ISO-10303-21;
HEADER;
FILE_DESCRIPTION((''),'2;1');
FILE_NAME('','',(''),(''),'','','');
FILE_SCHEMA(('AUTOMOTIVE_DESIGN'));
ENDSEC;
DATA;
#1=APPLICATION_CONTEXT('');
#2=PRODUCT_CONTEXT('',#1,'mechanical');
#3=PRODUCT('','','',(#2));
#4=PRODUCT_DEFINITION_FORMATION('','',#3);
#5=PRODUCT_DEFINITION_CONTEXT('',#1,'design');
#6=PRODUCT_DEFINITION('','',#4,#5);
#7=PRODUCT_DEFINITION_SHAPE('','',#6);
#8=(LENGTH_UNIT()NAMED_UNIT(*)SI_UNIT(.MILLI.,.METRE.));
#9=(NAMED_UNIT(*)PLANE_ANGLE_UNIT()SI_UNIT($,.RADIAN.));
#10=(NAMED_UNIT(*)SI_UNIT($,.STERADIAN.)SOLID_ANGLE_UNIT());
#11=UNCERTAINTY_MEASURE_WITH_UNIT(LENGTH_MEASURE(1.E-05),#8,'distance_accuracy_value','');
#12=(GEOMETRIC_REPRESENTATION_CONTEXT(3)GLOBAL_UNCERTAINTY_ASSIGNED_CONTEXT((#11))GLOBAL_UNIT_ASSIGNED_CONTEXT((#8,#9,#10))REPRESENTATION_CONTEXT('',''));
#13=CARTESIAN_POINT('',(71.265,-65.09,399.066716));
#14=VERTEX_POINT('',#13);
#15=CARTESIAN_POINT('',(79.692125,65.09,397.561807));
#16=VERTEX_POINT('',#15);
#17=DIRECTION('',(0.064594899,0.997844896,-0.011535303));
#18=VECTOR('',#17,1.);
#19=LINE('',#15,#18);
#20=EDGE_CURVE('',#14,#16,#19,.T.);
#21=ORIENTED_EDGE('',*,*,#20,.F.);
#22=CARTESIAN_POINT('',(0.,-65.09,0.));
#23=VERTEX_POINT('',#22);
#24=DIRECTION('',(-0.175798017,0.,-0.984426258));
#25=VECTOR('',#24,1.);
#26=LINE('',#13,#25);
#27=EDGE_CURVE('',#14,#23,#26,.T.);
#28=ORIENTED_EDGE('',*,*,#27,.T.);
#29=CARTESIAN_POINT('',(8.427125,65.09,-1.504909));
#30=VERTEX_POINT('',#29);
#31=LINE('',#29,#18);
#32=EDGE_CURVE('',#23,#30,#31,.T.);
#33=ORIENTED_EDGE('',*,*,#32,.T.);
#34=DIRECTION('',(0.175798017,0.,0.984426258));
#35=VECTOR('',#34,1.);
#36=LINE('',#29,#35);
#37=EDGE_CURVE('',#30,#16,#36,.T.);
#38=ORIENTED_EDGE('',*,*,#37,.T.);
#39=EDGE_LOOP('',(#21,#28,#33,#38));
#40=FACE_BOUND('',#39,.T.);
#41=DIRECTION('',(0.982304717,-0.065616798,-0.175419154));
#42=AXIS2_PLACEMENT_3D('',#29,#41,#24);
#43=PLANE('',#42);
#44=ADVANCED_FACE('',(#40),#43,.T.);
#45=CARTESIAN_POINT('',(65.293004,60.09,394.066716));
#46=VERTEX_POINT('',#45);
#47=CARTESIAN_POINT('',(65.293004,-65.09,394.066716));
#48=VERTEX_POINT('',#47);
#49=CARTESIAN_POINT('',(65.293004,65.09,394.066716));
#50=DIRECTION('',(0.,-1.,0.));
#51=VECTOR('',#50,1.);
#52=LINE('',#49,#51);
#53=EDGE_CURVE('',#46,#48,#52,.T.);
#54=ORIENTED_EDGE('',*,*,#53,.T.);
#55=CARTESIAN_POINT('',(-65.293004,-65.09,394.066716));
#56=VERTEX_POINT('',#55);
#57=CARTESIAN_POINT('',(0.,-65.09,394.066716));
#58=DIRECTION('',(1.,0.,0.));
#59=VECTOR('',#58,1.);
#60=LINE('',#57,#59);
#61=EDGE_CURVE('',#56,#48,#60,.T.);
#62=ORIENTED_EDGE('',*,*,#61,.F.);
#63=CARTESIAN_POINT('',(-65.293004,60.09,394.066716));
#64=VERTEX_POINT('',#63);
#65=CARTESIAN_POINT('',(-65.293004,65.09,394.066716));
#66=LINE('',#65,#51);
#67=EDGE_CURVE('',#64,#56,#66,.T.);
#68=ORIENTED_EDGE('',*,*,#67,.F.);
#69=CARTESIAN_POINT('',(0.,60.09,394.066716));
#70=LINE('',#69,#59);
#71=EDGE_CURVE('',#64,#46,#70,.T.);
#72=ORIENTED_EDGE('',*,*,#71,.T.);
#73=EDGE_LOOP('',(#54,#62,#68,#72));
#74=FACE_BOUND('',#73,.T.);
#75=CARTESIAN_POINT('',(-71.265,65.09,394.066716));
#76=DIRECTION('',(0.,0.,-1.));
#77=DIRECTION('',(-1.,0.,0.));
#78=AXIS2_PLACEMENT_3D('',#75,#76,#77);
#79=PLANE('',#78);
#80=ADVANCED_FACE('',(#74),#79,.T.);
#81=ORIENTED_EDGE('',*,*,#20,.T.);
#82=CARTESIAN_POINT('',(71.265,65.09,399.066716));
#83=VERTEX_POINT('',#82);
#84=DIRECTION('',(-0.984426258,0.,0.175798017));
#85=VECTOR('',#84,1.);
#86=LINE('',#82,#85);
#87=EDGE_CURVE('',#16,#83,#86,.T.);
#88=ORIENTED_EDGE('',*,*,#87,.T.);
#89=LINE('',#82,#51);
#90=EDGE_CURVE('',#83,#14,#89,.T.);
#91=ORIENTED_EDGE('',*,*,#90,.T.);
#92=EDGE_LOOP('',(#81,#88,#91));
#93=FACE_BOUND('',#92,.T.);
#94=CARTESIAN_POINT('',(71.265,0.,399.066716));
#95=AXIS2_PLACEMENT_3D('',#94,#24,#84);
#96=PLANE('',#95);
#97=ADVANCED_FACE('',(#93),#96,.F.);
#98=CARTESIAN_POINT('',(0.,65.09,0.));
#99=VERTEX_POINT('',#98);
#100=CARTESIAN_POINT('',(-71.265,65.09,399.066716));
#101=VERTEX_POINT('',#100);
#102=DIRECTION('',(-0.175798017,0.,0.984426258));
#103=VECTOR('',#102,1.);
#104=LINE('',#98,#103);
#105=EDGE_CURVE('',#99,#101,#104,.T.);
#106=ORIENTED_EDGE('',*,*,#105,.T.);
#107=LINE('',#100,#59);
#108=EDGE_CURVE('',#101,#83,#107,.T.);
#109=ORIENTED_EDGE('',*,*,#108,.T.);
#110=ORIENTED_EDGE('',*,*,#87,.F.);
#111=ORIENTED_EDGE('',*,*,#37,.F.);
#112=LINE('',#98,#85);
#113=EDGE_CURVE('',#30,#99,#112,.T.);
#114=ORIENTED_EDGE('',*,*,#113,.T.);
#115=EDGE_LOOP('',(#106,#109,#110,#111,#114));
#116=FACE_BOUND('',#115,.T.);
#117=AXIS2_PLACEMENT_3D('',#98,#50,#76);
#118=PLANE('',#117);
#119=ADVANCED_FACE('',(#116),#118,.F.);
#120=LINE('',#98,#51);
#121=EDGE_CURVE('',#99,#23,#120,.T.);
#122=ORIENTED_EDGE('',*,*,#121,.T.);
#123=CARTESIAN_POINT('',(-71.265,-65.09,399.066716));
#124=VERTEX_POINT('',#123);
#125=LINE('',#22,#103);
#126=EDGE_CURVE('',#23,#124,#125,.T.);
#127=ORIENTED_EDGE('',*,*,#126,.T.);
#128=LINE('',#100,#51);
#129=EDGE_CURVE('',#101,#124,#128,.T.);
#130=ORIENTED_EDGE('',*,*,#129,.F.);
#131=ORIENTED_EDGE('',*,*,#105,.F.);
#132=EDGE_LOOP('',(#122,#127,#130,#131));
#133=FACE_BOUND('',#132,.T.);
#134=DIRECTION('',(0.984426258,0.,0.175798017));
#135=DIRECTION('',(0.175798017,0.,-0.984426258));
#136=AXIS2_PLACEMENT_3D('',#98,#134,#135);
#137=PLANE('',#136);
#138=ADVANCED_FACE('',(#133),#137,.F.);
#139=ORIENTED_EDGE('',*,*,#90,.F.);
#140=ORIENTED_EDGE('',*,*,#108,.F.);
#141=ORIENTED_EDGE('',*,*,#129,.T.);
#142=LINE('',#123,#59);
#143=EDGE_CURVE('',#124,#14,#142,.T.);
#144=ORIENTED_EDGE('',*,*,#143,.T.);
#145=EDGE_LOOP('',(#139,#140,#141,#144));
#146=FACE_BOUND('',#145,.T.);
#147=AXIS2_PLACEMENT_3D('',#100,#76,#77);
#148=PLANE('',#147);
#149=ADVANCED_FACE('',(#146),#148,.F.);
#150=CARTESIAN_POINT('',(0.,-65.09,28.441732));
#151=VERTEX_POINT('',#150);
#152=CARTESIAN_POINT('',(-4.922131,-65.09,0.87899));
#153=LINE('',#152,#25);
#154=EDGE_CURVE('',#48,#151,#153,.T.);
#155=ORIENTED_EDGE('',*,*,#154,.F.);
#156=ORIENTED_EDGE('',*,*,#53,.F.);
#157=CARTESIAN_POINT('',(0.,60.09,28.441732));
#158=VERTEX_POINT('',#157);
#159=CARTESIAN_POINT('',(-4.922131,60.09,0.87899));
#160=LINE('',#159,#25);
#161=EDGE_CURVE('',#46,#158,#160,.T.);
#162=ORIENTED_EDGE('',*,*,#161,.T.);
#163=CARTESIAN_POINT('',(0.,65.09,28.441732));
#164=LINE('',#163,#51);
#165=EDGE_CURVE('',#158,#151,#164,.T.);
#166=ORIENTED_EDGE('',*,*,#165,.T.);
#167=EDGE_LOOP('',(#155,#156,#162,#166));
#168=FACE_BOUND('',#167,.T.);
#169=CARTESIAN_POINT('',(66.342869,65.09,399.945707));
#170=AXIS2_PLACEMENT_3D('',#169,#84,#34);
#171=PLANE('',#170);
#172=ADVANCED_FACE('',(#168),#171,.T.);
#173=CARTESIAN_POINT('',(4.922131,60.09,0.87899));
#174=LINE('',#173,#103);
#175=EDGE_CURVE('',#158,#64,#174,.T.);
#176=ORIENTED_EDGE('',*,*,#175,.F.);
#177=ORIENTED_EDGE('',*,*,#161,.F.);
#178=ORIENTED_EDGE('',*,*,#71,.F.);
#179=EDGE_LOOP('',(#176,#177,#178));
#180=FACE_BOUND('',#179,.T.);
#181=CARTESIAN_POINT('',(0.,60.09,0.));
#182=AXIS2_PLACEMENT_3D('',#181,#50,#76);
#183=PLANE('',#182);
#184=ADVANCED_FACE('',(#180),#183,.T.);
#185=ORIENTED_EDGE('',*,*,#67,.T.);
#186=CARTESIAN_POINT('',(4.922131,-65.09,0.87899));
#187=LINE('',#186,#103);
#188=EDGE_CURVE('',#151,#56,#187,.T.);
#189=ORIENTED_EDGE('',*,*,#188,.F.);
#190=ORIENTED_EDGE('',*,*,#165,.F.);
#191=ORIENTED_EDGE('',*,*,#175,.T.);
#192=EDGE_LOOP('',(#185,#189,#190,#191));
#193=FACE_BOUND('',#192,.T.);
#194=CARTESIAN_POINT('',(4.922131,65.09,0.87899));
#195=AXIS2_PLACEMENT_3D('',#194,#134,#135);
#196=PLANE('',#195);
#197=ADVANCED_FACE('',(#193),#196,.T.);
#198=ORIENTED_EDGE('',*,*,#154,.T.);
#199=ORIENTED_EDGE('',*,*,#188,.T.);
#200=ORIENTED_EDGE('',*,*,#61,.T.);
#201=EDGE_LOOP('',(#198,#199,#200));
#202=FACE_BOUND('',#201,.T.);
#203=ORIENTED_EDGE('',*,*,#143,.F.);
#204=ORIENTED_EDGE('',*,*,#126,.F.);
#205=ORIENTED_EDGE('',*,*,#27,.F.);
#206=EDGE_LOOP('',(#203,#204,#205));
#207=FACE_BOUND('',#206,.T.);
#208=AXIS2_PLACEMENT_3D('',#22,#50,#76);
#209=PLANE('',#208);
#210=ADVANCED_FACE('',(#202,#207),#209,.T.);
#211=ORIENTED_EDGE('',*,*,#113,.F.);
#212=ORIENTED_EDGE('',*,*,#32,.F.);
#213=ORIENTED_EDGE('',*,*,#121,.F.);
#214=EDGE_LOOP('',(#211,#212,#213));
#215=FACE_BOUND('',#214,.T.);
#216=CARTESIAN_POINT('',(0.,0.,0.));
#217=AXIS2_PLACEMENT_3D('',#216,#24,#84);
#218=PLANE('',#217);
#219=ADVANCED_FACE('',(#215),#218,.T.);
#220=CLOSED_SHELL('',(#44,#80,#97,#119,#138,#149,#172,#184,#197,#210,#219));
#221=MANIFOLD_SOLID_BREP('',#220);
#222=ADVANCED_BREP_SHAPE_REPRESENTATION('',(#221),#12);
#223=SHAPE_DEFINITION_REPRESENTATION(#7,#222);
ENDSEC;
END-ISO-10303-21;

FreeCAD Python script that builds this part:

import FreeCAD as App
import Part
import Sketcher
from FreeCAD import Vector


def faces_at(feature, points):
    """Names of the faces that lie closest to the given points."""
    faces = feature.Shape.Faces
    near = lambda p: min(range(len(faces)), key=lambda i: faces[i].distToShape(Part.Vertex(*p))[0])
    return sorted({f"Face{near(p) + 1}" for p in points})

doc = App.newDocument("Part")
body = doc.addObject("PartDesign::Body", "Body")

# Sketch on XZ plane
sketch1 = body.newObject("Sketcher::SketchObject", "Sketch")
sketch1.AttachmentSupport = (doc.getObject("XZ_Plane"), [""])
sketch1.MapMode = "FlatFace"
sketch1.addGeometry([
    Part.LineSegment(Vector(0, 0, 0), Vector(-71.265, 399.066716, 0)),
    Part.LineSegment(Vector(-71.265, 399.066716, 0), Vector(71.265, 399.066716, 0)),
    Part.LineSegment(Vector(71.265, 399.066716, 0), Vector(0, 0, 0)),
], False)
sketch1.addConstraint([
    Sketcher.Constraint("Coincident", 0, 2, 1, 1),
    Sketcher.Constraint("Coincident", 1, 2, 2, 1),
    Sketcher.Constraint("Coincident", 2, 2, 0, 1),
    Sketcher.Constraint("Horizontal", 1),
    Sketcher.Constraint("Coincident", 2, 2, -1, 1),
    Sketcher.Constraint("Equal", 0, 2),
    Sketcher.Constraint("DistanceX", 1, 1, 1, 2, 142.53),
    Sketcher.Constraint("Distance", 0, 405.38),
])
pad1 = body.newObject("PartDesign::Pad", "Pad")
pad1.Profile = sketch1
pad1.Length = 130.18
pad1.Midplane = True
doc.recompute()

thickness = body.newObject("PartDesign::Thickness", "Thickness")
thickness.Base = (pad1, faces_at(pad1, [(0, -65.09, 199.533)]))
thickness.Value = 5
thickness.Reversed = True
thickness.Join = "Intersection"

# Sketch on an angled plane
sketch2 = body.newObject("Sketcher::SketchObject", "Sketch001")
sketch2.Placement = App.Placement(Vector(71.265, 0, 399.066716), App.Rotation(Vector(0, -1, 0), Vector(0.984426258, 0, -0.175798017), Vector(0.175798017, 0, 0.984426258), "ZXY"))
sketch2.addGeometry([
    Part.LineSegment(Vector(-65.09, 0, 0), Vector(65.09, 0, 0)),
    Part.LineSegment(Vector(65.09, 0, 0), Vector(-65.09, 8.560443, 0)),
    Part.LineSegment(Vector(-65.09, 8.560443, 0), Vector(-65.09, 0, 0)),
], False)
sketch2.addConstraint([
    Sketcher.Constraint("Coincident", 0, 2, 1, 1),
    Sketcher.Constraint("Coincident", 1, 2, 2, 1),
    Sketcher.Constraint("Coincident", 2, 2, 0, 1),
    Sketcher.Constraint("Horizontal", 0),
    Sketcher.Constraint("Vertical", 2),
    Sketcher.Constraint("Symmetric", 0, 2, 2, 2, -1, 1),
    Sketcher.Constraint("DistanceX", 0, 1, 0, 2, 130.18),
    Sketcher.Constraint("DistanceY", 2, 2, 2, 1, 8.560443),
])
pad2 = body.newObject("PartDesign::Pad", "Pad001")
pad2.Profile = sketch2
pad2.Length = 405.38
pad2.Reversed = True

doc.recompute()
